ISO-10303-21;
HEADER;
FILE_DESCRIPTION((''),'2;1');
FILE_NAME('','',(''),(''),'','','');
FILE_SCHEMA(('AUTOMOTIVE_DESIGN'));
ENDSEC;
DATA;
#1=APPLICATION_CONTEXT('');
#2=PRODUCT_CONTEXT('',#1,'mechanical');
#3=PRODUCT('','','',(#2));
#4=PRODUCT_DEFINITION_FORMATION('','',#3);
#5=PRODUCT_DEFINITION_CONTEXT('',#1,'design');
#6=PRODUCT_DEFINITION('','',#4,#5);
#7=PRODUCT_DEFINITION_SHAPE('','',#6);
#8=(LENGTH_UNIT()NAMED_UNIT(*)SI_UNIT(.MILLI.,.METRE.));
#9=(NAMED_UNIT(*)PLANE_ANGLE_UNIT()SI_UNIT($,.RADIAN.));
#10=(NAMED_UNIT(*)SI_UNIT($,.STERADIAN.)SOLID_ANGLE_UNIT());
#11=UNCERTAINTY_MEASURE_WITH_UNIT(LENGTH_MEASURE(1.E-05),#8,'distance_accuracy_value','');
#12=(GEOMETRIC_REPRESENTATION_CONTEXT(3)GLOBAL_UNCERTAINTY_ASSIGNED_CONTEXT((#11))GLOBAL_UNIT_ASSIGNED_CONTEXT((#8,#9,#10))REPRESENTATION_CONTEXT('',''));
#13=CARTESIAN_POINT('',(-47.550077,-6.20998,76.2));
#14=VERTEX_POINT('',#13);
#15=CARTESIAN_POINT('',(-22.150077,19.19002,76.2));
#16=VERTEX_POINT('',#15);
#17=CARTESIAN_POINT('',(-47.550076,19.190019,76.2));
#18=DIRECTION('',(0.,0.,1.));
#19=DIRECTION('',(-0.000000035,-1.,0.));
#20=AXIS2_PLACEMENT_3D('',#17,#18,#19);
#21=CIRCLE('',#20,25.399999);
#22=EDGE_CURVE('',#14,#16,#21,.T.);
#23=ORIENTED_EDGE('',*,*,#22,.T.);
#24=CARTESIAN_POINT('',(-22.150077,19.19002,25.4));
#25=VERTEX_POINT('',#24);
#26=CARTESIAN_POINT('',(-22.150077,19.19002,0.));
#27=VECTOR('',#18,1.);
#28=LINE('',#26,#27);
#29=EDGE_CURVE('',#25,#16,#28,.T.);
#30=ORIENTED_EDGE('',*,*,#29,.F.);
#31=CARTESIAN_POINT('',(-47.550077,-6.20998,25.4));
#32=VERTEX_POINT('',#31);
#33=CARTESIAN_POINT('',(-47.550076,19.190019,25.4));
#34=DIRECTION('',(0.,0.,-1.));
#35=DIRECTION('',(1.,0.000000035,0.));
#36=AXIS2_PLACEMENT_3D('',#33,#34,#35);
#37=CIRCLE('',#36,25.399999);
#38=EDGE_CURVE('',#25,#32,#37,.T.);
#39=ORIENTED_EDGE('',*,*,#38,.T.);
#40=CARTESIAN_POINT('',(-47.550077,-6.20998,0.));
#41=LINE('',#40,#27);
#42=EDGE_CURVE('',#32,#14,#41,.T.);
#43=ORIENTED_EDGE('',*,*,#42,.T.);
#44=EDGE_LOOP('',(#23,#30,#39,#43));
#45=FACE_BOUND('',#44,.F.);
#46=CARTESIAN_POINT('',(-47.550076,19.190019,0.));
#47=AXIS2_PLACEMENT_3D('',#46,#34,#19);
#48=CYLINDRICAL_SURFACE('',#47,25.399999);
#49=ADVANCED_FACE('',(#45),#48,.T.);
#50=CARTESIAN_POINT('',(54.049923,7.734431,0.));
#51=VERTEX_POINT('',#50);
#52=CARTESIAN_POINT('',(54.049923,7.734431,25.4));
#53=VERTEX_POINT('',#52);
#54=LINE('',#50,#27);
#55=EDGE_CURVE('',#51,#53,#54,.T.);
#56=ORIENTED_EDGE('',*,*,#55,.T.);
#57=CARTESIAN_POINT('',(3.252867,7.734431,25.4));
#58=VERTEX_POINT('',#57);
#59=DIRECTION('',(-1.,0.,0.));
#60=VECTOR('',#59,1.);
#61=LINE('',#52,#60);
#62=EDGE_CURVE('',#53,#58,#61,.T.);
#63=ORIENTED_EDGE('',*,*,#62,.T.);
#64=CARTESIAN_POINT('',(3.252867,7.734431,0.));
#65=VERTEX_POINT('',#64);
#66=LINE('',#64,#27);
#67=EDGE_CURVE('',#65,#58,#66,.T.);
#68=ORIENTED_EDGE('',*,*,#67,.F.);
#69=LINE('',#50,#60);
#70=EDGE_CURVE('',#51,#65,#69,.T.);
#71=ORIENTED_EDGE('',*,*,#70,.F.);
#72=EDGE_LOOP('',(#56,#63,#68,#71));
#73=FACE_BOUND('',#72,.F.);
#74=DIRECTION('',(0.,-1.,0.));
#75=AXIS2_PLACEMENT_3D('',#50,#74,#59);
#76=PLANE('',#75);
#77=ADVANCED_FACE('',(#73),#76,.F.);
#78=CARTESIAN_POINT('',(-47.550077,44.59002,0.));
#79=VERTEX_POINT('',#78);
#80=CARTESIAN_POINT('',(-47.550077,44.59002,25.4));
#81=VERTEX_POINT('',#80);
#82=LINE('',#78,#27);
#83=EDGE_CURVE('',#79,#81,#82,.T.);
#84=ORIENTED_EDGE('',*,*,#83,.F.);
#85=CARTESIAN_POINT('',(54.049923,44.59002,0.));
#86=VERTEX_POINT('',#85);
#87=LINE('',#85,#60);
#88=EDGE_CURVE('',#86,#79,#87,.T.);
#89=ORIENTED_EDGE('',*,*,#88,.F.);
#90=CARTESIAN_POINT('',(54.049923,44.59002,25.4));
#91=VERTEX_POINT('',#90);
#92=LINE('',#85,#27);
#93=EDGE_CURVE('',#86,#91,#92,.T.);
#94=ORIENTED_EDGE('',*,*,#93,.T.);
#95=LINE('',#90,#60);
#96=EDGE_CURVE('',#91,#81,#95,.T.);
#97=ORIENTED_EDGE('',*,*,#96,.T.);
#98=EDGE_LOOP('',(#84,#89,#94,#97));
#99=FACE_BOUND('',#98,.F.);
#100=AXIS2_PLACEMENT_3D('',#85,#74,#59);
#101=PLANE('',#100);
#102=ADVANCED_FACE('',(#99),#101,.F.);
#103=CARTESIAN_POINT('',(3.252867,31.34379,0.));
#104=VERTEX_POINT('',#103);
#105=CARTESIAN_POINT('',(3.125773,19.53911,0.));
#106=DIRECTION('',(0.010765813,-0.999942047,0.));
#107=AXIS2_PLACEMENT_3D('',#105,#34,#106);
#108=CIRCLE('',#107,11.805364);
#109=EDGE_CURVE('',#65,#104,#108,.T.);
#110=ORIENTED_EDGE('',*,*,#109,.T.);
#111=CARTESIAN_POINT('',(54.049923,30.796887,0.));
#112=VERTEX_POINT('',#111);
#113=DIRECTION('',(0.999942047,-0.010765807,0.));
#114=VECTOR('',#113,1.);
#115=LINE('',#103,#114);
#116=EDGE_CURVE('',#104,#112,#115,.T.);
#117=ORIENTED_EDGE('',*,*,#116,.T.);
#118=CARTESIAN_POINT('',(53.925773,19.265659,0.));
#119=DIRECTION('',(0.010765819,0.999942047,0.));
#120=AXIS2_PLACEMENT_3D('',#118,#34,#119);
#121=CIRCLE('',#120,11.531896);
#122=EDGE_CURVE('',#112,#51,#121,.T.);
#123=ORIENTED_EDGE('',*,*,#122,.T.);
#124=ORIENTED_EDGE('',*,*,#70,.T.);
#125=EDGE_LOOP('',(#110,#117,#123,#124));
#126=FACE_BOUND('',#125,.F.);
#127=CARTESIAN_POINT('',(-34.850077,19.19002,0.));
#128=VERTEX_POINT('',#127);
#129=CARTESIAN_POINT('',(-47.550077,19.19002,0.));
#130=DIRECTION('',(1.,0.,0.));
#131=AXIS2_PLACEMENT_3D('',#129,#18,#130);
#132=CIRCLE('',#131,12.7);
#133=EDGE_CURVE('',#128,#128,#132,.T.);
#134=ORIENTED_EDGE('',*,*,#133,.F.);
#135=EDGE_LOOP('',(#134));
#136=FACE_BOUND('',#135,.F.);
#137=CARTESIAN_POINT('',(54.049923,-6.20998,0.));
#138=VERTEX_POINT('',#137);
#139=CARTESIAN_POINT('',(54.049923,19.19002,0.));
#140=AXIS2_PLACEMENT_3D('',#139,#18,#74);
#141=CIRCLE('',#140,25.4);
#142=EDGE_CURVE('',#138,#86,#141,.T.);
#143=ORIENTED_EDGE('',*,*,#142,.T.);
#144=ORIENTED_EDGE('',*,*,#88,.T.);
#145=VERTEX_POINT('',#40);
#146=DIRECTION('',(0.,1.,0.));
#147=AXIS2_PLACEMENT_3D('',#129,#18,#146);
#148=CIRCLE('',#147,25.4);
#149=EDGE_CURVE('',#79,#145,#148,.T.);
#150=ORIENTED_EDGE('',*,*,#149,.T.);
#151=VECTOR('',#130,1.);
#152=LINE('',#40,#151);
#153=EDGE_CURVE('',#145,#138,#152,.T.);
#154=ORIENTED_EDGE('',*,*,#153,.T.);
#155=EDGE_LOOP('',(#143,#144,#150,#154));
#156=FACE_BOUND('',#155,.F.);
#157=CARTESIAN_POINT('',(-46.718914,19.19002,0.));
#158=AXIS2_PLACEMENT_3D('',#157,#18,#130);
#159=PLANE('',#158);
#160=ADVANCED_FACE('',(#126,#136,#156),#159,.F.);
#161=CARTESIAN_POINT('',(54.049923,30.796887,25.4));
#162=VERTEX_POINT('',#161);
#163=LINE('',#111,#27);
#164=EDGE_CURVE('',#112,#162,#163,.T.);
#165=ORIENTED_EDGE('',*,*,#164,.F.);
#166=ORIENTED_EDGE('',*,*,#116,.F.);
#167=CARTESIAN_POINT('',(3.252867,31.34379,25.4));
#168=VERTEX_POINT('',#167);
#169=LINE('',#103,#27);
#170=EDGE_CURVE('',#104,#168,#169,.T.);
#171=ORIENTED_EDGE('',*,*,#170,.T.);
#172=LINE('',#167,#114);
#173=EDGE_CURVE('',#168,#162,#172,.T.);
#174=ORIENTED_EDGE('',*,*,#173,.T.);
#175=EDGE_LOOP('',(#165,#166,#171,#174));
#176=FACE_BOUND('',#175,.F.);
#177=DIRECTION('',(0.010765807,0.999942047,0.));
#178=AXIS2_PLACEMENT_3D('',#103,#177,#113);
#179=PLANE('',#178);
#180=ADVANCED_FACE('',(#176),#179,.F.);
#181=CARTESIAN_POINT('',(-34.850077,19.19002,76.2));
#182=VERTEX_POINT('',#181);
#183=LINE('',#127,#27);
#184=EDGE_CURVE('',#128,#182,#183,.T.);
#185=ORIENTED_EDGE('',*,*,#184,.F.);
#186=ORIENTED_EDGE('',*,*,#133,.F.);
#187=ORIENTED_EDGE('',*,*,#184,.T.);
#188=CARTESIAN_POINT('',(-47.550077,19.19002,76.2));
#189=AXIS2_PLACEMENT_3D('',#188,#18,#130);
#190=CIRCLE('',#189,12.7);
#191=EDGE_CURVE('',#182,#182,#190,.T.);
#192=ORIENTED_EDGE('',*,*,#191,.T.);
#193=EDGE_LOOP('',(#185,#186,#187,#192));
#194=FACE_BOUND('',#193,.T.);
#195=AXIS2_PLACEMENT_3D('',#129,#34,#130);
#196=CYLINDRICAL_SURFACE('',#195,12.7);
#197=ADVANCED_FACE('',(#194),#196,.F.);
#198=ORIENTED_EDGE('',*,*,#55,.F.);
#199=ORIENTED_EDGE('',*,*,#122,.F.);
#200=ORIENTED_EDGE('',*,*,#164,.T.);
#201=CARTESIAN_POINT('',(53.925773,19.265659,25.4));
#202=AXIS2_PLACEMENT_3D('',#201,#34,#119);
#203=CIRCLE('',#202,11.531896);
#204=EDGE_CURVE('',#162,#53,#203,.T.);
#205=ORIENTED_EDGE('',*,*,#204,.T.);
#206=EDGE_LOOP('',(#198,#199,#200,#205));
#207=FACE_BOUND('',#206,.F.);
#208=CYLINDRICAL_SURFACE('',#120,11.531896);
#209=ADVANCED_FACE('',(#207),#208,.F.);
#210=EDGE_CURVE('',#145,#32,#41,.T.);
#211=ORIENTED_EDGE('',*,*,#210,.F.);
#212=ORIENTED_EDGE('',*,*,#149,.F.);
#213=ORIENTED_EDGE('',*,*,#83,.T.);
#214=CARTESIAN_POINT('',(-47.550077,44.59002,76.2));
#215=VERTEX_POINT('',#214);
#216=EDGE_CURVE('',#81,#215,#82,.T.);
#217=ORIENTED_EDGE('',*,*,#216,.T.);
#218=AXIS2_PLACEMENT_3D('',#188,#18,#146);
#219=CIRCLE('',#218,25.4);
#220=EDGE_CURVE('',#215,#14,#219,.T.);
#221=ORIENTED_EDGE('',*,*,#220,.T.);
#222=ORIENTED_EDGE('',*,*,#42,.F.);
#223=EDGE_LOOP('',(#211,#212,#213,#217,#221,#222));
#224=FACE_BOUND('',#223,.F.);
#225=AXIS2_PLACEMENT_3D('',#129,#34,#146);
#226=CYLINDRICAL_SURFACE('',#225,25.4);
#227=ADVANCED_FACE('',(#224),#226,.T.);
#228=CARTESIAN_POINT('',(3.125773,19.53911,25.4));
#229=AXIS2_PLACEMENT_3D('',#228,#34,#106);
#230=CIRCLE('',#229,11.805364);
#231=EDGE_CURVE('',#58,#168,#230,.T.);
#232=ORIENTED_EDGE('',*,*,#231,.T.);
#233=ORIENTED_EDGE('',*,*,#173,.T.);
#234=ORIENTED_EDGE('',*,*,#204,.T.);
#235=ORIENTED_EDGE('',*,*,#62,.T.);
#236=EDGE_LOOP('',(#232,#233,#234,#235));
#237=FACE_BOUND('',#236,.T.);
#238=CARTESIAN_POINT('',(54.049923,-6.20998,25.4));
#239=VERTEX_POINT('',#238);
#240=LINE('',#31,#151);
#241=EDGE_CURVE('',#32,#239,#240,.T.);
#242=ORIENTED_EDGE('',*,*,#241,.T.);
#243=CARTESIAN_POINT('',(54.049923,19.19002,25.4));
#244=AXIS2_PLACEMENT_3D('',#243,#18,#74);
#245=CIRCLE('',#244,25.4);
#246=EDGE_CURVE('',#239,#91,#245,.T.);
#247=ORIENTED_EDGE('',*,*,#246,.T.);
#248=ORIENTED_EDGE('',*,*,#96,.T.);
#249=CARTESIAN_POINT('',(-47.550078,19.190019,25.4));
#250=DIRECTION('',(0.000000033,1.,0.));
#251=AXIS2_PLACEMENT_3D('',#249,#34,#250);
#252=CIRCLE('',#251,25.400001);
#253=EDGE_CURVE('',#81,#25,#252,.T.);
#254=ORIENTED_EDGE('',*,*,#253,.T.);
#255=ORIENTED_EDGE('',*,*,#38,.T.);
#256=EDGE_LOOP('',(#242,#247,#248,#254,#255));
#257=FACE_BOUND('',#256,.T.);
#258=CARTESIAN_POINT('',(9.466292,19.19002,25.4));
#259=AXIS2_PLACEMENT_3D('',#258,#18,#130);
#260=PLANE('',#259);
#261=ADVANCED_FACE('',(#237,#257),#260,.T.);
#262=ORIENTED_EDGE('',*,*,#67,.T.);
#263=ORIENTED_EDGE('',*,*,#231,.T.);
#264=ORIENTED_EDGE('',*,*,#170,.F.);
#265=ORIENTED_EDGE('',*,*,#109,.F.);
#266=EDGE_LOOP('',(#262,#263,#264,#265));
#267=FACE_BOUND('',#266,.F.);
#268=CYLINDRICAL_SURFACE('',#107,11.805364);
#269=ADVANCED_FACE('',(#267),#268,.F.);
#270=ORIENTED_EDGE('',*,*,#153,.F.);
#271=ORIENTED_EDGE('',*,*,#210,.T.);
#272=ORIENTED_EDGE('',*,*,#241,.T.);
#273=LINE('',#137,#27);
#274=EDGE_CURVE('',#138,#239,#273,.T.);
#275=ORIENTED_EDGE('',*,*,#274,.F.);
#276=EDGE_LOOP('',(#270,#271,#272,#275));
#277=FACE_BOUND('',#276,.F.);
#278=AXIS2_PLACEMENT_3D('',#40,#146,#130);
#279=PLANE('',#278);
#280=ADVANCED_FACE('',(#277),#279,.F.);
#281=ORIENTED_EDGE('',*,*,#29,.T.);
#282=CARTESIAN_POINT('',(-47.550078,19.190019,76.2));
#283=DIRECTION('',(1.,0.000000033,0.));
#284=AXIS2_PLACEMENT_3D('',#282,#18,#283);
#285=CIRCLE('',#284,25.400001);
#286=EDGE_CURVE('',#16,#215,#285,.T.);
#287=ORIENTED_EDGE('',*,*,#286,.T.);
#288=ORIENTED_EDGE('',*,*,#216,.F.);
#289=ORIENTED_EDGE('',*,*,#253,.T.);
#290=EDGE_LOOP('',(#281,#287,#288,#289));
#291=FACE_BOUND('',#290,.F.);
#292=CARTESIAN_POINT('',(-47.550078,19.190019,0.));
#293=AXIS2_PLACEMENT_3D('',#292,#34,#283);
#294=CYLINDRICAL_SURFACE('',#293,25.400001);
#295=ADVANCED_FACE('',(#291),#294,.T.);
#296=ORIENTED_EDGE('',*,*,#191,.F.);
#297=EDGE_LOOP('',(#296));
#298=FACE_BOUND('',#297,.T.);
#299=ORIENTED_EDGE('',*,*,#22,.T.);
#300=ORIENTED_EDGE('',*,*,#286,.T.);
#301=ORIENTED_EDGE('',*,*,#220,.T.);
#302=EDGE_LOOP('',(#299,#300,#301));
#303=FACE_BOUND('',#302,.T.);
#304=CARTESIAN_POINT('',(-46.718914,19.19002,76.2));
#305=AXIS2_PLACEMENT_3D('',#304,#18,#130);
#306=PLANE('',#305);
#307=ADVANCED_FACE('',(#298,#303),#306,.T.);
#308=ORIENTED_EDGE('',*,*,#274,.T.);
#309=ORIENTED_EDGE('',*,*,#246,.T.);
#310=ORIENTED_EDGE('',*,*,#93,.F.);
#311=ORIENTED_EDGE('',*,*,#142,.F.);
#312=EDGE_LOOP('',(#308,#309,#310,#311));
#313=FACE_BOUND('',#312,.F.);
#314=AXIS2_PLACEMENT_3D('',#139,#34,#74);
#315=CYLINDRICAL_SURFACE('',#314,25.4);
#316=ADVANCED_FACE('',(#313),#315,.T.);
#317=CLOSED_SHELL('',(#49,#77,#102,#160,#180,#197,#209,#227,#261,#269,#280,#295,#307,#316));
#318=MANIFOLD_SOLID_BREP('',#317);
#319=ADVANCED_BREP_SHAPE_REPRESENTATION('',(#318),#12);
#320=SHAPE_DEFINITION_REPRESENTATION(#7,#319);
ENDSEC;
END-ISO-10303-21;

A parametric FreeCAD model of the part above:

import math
import FreeCAD as App
import Part
import Sketcher
from FreeCAD import Vector
Q = App.Units.Quantity

doc = App.newDocument("Part")
params = doc.addObject("Spreadsheet::Sheet", "Params")
for row, (alias, value) in enumerate([
    ("sketch1_radius", "1 in"),
    ("sketch1_width", "4 in"),
    ("sketch1_length", "2 in"),
    ("pad1_length", "1 in"),
    ("sketch2_diameter", "1 in"),
    ("sketch2_radius", "1 in"),
    ("pad2_length", "3 in"),
], start=1):
    params.set(f"A{row}", alias)
    params.set(f"B{row}", "=" + value)
    params.setAlias(f"B{row}", alias)

body = doc.addObject("PartDesign::Body", "Body")

sketch1 = doc.addObject("Sketcher::SketchObject", "Sketch")
body.addObject(sketch1)
sketch1.AttachmentSupport = (doc.XY_Plane, [""])
sketch1.MapMode = "FlatFace"
sketch1.addGeometry([
    Part.LineSegment(Vector(54.049923, 44.59002, 0), Vector(-47.550077, 44.59002, 0)),
    Part.ArcOfCircle(Part.Circle(Vector(-47.550078, 19.190019, 0), Vector(0, 0, 1), 25.400001), math.radians(0.000002), math.radians(89.999998)),
    Part.ArcOfCircle(Part.Circle(Vector(-47.550076, 19.190019, 0), Vector(0, 0, 1), 25.399999), math.radians(-90.000002), math.radians(0.000002)),
    Part.LineSegment(Vector(-47.550077, -6.20998, 0), Vector(54.049923, -6.20998, 0)),
    Part.ArcOfCircle(Part.Circle(Vector(54.049923, 19.19002, 0), Vector(0, 0, 1), 25.4), math.radians(-90), math.radians(90)),
    Part.ArcOfCircle(Part.Circle(Vector(3.125773, 19.53911, 0), Vector(0, 0, 1), 11.805364), math.radians(89.383152), math.radians(270.616848)),
    Part.LineSegment(Vector(3.252867, 31.34379, 0), Vector(54.049923, 30.796887, 0)),
    Part.ArcOfCircle(Part.Circle(Vector(53.925773, 19.265659, 0), Vector(0, 0, 1), 11.531896), math.radians(-89.383152), math.radians(89.383152)),
    Part.LineSegment(Vector(54.049923, 7.734431, 0), Vector(3.252867, 7.734431, 0)),
], False)
sketch1.addConstraint([
    Sketcher.Constraint("Tangent", 0, 2, 1, 2),
    Sketcher.Constraint("Tangent", 1, 1, 2, 2),
    Sketcher.Constraint("Tangent", 2, 1, 3, 1),
    Sketcher.Constraint("Tangent", 3, 2, 4, 1),
    Sketcher.Constraint("Tangent", 4, 2, 0, 1),
    Sketcher.Constraint("Tangent", 5, 1, 6, 1),
    Sketcher.Constraint("Tangent", 6, 2, 7, 2),
    Sketcher.Constraint("Coincident", 7, 1, 8, 1),
    Sketcher.Constraint("Coincident", 8, 2, 5, 2),
    Sketcher.Constraint("Horizontal", 0),
    Sketcher.Constraint("Horizontal", 3),
    Sketcher.Constraint("Horizontal", 8),
    Sketcher.Constraint("Equal", 1, 2),
    Sketcher.Constraint("Horizontal", 4, 3, 1, 1),
    Sketcher.Constraint("Vertical", 4, 2, 6, 2),
    Sketcher.Constraint("Vertical", 6, 2, 7, 1),
    Sketcher.Constraint("Vertical", 5, 1, 8, 2),
    Sketcher.Constraint("Radius", 1, Q("1 in")),
    Sketcher.Constraint("DistanceX", 0, 2, 0, 1, Q("4 in")),
    Sketcher.Constraint("Distance", 6, Q("2 in")),
    Sketcher.Constraint("Radius", 5, Q("11.805364 mm")),
    Sketcher.Constraint("Radius", 7, Q("11.531896 mm")),
    Sketcher.Constraint("DistanceY", -1, 1, 1, 3, Q("19.190019 mm")),
    Sketcher.Constraint("DistanceY", -1, 1, 5, 3, Q("19.53911 mm")),
    Sketcher.Constraint("DistanceX", 1, 3, -1, 1, Q("47.550078 mm")),
])
sketch1.setExpression("Constraints[17]", "Params.sketch1_radius")
sketch1.setExpression("Constraints[18]", "Params.sketch1_width")
sketch1.setExpression("Constraints[19]", "Params.sketch1_length")
pad1 = doc.addObject("PartDesign::Pad", "Pad")
body.addObject(pad1)
pad1.Profile = sketch1
pad1.setExpression("Length", "Params.pad1_length")

sketch2 = doc.addObject("Sketcher::SketchObject", "Sketch001")
body.addObject(sketch2)
sketch2.AttachmentSupport = (doc.XY_Plane, [""])
sketch2.MapMode = "FlatFace"
sketch2.addGeometry([
    Part.ArcOfCircle(Part.Circle(Vector(-47.550078, 19.190019, 0), Vector(0, 0, 1), 25.400001), math.radians(0.000002), math.radians(89.999998)),
    Part.ArcOfCircle(Part.Circle(Vector(-47.550077, 19.19002, 0), Vector(0, 0, 1), 25.4), math.radians(90), math.radians(270)),
    Part.ArcOfCircle(Part.Circle(Vector(-47.550076, 19.190019, 0), Vector(0, 0, 1), 25.399999), math.radians(-90.000002), math.radians(0.000002)),
    Part.Circle(Vector(-47.550077, 19.19002, 0), Vector(0, 0, 1), 12.7),
], False)
sketch2.addConstraint([
    Sketcher.Constraint("Tangent", 0, 2, 1, 1),
    Sketcher.Constraint("Tangent", 1, 2, 2, 1),
    Sketcher.Constraint("Tangent", 2, 2, 0, 1),
    Sketcher.Constraint("Coincident", 3, 3, 0, 3),
    Sketcher.Constraint("Horizontal", 3, 3, 2, 2),
    Sketcher.Constraint("Vertical", 3, 3, 0, 2),
    Sketcher.Constraint("Vertical", 0, 2, 1, 2),
    Sketcher.Constraint("Diameter", 3, Q("1 in")),
    Sketcher.Constraint("Radius", 0, Q("1 in")),
    Sketcher.Constraint("DistanceY", -1, 1, 0, 3, Q("19.190019 mm")),
    Sketcher.Constraint("DistanceX", 0, 3, -1, 1, Q("47.550078 mm")),
])
sketch2.setExpression("Constraints[7]", "Params.sketch2_diameter")
sketch2.setExpression("Constraints[8]", "Params.sketch2_radius")
pad2 = doc.addObject("PartDesign::Pad", "Pad001")
body.addObject(pad2)
pad2.Profile = sketch2
pad2.setExpression("Length", "Params.pad2_length")

doc.recompute()
